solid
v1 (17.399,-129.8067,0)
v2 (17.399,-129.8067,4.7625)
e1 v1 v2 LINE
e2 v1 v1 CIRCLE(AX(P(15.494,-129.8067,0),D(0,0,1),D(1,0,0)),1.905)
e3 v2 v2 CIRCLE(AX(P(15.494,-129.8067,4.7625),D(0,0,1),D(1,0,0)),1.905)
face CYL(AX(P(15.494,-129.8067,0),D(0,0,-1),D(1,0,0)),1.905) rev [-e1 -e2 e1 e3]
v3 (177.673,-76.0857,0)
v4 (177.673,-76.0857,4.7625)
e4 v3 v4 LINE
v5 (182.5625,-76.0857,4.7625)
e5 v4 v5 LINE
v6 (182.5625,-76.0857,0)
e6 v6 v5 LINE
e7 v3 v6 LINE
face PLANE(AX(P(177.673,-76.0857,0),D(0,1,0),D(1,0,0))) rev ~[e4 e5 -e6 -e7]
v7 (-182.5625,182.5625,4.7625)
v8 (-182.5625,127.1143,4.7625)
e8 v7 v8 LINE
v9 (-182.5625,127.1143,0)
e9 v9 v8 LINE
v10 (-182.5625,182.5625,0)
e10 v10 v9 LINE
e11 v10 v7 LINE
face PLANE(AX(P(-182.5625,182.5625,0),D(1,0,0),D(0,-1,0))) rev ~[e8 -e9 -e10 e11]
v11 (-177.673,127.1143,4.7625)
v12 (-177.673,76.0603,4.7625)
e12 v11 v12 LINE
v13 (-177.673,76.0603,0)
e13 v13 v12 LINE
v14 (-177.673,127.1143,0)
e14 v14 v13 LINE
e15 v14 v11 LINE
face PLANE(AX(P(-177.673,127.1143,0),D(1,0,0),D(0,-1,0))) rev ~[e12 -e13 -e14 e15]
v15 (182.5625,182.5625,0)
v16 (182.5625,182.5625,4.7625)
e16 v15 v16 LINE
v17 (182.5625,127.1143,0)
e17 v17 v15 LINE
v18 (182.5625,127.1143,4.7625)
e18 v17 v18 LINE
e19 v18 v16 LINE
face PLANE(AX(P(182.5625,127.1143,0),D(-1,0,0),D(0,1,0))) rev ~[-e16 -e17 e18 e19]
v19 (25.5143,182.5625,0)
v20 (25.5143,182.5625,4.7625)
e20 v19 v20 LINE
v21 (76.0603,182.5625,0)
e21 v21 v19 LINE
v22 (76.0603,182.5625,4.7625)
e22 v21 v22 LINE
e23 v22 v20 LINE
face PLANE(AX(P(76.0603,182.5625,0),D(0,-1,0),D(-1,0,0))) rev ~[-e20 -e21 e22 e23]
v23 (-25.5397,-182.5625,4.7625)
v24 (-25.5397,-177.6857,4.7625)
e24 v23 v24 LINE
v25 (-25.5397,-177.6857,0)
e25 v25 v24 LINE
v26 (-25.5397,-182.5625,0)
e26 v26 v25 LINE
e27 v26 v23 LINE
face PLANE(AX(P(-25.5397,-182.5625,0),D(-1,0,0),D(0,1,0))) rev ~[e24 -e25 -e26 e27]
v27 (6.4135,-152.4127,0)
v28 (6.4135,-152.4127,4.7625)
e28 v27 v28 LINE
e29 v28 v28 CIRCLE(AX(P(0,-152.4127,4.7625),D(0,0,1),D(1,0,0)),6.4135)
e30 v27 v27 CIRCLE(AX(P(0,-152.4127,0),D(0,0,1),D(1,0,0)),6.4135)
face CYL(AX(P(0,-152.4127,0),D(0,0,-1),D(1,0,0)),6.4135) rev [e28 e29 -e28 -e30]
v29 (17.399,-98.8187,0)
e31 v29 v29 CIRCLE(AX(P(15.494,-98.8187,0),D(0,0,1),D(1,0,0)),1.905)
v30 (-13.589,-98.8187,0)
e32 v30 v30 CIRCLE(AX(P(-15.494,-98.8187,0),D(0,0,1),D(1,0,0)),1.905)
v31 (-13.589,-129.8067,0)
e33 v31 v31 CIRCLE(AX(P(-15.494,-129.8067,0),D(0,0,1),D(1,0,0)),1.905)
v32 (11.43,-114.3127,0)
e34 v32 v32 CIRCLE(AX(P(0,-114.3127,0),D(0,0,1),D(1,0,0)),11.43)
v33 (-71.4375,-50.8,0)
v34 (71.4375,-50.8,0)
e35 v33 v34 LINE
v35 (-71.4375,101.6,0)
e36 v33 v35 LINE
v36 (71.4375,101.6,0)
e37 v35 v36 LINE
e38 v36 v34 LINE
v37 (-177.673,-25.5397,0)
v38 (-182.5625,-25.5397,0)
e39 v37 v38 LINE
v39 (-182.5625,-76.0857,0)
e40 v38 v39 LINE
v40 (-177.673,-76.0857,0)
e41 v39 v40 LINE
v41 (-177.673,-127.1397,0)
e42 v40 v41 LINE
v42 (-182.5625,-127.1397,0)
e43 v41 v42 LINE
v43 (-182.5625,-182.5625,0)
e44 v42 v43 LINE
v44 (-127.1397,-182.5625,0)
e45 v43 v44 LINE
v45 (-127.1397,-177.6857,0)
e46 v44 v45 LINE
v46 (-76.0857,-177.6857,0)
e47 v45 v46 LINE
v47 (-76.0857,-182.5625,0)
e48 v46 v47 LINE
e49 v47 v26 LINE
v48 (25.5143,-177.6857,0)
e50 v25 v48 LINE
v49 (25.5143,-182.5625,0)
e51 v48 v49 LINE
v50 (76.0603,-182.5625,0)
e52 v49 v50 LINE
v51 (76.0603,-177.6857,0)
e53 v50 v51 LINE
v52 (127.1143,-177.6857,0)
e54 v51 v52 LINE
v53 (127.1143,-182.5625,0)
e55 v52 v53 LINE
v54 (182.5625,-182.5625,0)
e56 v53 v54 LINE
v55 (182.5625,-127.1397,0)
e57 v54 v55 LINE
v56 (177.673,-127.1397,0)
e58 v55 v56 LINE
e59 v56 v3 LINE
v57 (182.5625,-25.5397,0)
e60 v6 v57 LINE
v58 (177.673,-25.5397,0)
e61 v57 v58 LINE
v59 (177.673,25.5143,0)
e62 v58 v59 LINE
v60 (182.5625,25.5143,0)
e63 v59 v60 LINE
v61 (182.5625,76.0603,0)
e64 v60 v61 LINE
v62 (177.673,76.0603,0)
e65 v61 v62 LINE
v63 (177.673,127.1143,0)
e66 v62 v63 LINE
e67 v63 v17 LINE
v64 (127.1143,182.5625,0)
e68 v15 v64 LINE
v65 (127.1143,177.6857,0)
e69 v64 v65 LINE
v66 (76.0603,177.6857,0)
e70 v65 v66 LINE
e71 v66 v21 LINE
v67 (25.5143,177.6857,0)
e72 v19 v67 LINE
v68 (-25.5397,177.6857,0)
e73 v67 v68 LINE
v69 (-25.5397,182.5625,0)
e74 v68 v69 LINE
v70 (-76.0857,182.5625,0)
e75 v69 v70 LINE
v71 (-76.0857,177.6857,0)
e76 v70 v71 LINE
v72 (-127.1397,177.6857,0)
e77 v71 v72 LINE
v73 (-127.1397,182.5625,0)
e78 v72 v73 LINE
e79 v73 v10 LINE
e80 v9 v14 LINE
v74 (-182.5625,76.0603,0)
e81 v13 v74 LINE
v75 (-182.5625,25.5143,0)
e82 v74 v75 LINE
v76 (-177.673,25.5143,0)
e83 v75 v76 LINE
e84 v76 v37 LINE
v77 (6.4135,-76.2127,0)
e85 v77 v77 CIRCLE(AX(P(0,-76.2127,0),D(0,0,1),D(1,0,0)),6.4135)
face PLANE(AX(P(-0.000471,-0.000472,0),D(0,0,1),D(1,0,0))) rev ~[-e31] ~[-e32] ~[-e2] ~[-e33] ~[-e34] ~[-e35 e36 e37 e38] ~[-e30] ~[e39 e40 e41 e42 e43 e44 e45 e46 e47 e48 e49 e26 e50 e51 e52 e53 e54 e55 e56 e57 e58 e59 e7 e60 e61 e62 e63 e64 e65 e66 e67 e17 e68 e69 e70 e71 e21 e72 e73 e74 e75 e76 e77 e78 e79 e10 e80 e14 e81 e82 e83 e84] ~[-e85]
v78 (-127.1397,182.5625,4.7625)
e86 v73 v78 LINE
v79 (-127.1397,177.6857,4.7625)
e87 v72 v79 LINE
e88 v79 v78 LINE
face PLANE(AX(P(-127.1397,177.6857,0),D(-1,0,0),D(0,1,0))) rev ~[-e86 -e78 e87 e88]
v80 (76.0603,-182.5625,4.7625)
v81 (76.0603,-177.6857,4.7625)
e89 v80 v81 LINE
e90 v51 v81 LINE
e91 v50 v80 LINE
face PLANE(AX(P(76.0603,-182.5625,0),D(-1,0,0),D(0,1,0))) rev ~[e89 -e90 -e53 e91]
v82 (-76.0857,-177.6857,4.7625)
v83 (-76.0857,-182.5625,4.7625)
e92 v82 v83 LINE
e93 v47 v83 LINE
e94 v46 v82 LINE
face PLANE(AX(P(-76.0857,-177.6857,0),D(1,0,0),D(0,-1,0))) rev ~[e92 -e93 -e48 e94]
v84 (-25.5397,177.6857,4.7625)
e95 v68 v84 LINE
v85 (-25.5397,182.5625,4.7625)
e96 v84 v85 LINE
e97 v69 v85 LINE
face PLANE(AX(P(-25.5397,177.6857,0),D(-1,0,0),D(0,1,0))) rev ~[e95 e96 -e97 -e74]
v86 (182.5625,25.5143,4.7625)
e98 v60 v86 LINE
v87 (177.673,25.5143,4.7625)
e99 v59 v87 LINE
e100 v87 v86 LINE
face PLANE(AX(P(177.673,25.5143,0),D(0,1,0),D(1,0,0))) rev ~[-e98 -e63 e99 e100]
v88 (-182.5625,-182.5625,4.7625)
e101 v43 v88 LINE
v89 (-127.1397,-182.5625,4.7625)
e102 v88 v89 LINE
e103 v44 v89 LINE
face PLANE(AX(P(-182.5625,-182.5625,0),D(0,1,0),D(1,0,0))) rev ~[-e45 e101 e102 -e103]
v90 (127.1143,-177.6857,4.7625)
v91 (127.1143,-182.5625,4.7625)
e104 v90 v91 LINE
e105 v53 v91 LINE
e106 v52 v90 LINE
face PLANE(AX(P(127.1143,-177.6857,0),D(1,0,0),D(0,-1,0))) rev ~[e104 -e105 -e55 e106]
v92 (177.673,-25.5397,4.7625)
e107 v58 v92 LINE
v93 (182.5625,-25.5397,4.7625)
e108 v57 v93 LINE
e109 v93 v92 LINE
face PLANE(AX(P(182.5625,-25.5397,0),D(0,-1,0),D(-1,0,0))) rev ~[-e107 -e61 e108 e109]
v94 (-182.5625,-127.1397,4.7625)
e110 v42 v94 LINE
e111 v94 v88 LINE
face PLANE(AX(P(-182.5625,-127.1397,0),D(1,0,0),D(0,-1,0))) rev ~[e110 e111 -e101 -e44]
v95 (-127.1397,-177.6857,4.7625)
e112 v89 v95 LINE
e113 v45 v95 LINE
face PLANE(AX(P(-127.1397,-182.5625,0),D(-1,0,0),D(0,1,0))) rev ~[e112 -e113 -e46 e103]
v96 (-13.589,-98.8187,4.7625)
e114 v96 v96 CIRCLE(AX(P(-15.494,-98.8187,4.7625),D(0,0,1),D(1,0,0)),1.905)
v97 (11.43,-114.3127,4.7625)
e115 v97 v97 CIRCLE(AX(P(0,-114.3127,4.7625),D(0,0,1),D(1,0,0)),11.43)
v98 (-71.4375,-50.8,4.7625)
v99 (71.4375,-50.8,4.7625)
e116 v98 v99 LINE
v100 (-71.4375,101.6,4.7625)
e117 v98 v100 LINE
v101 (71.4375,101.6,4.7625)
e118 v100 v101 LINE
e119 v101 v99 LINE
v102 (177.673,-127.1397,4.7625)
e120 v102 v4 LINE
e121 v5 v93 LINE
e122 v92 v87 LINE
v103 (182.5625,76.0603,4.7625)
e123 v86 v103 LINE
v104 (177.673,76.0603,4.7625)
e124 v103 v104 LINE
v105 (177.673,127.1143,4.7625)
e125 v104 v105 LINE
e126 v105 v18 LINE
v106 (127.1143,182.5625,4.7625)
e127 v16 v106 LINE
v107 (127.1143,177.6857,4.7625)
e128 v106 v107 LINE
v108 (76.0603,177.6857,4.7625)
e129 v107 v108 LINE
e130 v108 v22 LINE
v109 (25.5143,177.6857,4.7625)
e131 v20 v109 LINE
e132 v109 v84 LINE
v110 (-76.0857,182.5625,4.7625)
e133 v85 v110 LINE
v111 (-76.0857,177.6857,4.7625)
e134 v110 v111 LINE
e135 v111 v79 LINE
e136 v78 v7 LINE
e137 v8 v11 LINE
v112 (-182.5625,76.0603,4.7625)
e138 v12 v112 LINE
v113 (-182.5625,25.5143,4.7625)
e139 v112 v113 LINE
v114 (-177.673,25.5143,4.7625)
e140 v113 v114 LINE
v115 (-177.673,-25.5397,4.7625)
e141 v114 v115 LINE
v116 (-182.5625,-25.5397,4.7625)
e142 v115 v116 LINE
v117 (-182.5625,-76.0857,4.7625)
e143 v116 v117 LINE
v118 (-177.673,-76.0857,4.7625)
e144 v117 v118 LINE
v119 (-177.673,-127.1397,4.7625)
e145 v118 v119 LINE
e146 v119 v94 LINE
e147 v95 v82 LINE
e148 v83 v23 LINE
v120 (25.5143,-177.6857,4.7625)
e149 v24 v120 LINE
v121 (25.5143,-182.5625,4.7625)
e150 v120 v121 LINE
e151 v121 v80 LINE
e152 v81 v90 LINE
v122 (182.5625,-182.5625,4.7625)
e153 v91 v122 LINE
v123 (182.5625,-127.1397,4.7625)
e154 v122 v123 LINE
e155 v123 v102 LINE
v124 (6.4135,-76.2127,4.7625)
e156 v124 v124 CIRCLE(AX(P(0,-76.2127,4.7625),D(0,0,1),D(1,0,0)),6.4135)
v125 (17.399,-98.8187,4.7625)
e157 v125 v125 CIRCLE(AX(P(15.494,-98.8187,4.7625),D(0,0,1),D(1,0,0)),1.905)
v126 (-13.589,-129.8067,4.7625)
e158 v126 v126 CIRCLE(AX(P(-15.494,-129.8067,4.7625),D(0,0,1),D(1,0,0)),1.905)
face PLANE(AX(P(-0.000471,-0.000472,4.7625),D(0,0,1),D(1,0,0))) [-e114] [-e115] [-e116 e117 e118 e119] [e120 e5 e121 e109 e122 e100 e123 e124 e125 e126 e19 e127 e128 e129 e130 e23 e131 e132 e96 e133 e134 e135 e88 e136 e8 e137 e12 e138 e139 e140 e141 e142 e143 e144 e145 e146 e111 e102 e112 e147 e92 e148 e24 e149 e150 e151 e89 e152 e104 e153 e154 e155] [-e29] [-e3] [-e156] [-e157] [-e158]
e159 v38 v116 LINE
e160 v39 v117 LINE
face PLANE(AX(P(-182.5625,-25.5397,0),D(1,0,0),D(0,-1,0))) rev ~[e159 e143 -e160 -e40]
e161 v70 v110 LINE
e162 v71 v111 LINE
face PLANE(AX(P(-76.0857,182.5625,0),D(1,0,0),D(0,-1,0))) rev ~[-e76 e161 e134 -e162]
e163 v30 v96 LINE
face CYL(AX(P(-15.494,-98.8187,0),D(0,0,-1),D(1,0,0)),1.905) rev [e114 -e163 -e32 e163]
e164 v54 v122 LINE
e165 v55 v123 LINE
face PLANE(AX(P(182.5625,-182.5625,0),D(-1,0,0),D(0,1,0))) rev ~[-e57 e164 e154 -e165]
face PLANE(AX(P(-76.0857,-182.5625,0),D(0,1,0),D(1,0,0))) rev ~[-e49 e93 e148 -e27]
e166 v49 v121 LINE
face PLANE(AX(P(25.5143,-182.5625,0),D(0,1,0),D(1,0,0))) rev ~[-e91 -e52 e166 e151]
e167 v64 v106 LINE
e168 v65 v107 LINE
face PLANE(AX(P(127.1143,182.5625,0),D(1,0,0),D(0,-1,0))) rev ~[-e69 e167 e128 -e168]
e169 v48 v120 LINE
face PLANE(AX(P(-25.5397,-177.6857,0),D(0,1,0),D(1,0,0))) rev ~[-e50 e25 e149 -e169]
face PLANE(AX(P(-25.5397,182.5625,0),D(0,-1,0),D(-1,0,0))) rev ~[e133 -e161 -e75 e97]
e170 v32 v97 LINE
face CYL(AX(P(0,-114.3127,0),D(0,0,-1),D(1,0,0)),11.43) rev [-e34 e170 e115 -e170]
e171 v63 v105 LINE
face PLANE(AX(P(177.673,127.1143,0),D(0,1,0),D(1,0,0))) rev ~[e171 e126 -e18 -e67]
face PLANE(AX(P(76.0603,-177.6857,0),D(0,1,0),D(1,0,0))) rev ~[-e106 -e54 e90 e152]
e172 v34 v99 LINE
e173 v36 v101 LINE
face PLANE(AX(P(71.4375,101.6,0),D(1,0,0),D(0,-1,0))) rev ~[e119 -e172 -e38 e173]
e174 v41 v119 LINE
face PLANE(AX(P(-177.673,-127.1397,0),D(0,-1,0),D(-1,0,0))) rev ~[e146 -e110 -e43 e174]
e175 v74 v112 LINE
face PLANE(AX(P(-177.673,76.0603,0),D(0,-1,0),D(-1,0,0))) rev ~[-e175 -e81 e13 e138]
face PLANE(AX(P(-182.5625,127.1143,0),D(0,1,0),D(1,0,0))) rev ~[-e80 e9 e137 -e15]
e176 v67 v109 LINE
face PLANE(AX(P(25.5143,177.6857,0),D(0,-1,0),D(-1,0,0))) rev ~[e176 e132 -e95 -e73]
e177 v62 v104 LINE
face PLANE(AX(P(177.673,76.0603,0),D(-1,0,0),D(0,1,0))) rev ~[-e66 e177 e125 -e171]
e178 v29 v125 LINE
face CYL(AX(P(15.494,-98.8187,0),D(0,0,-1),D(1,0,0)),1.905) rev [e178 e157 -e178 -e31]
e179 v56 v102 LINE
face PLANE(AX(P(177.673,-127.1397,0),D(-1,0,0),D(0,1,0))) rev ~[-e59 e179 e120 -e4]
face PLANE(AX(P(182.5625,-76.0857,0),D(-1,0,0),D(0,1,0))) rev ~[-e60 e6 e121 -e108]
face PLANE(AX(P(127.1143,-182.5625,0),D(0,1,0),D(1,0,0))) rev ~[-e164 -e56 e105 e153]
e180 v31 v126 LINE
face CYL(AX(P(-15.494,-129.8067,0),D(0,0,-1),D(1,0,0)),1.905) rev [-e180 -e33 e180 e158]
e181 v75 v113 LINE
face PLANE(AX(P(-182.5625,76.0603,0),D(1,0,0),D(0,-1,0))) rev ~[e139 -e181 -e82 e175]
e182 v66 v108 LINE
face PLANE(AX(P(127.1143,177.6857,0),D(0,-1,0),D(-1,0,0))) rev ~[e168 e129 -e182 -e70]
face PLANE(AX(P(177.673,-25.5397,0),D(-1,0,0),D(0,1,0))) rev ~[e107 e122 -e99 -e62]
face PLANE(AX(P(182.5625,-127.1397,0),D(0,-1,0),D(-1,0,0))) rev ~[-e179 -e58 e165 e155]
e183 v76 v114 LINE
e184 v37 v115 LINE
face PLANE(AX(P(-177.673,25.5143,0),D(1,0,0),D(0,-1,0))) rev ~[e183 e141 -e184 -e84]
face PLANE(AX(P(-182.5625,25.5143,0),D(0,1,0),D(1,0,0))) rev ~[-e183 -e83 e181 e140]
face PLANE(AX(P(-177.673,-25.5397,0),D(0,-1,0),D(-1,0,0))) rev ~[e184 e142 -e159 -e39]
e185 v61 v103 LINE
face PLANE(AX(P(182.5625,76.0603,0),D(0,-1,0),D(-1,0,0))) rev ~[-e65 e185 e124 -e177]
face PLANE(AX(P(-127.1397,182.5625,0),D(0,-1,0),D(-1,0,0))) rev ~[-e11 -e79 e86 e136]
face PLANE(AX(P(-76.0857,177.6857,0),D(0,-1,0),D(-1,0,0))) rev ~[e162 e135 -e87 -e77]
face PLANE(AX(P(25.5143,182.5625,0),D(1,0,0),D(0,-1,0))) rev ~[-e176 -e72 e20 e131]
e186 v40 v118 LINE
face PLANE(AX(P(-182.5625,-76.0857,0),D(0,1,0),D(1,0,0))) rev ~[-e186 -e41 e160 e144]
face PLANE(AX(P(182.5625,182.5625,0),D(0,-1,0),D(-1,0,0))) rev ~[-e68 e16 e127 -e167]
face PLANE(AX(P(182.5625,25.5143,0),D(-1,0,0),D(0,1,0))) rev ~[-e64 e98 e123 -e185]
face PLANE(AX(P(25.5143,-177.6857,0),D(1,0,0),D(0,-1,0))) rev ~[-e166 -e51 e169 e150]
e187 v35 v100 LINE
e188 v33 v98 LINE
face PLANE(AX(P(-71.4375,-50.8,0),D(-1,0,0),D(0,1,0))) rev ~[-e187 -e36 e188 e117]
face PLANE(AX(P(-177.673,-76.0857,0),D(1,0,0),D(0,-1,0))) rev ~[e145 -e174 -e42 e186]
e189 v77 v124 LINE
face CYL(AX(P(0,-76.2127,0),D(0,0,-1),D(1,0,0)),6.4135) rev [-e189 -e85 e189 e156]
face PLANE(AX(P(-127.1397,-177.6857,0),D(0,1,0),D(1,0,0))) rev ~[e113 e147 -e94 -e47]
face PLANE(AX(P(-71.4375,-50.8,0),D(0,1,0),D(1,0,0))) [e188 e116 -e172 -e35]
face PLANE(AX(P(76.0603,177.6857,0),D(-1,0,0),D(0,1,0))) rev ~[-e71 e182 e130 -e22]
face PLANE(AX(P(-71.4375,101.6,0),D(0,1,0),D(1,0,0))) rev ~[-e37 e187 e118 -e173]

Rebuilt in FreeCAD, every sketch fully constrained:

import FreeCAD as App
import Part
import Sketcher

V = App.Vector
Q = App.Units.Quantity


def add_polygon(sketch, points):
    """Adds a closed chain of lines whose ends are joined by coincident constraints."""
    first, n = sketch.GeometryCount, len(points)
    for a, b in zip(points, points[1:] + points[:1]):
        sketch.addGeometry(Part.LineSegment(App.Vector(*a, 0), App.Vector(*b, 0)), False)
    for i in range(n):
        sketch.addConstraint(Sketcher.Constraint("Coincident", first + i, 2, first + (i + 1) % n, 1))

doc = App.newDocument("Part")
body = doc.addObject("PartDesign::Body", "Body")

# Sketch on XY plane
sketch1 = body.newObject("Sketcher::SketchObject", "Sketch")
sketch1.AttachmentSupport = (doc.getObject("XY_Plane"), [""])
sketch1.MapMode = "FlatFace"
add_polygon(sketch1, [(182.6, 127.1), (182.6, 182.6), (127.1, 182.6), (127.1, 177.7), (76.1, 177.7), (76.1, 182.6), (25.5, 182.6), (25.5, 177.7), (-25.5, 177.7), (-25.5, 182.6), (-76.1, 182.6), (-76.1, 177.7), (-127.1, 177.7), (-127.1, 182.6), (-182.6, 182.6), (-182.6, 127.1), (-177.7, 127.1), (-177.7, 76.1), (-182.6, 76.1), (-182.6, 25.5), (-177.7, 25.5), (-177.7, -25.5), (-182.6, -25.5), (-182.6, -76.1), (-177.7, -76.1), (-177.7, -127.1), (-182.6, -127.1), (-182.6, -182.6), (-127.1, -182.6), (-127.1, -177.7), (-76.1, -177.7), (-76.1, -182.6), (-25.5, -182.6), (-25.5, -177.7), (25.5, -177.7), (25.5, -182.6), (76.1, -182.6), (76.1, -177.7), (127.1, -177.7), (127.1, -182.6), (182.6, -182.6), (182.6, -127.1), (177.7, -127.1), (177.7, -76.1), (182.6, -76.1), (182.6, -25.5), (177.7, -25.5), (177.7, 25.5), (182.6, 25.5), (182.6, 76.1), (177.7, 76.1), (177.7, 127.1)])  # lines 0-51
sketch1.addGeometry(Part.Circle(V(-15.5, -129.8, 0), V(0, 0, 1), 1.9), False)  # 52
sketch1.addGeometry(Part.Circle(V(-15.5, -98.8, 0), V(0, 0, 1), 1.9), False)  # 53
sketch1.addGeometry(Part.Circle(V(0, -152.4, 0), V(0, 0, 1), 6.4), False)  # 54
sketch1.addGeometry(Part.Circle(V(15.5, -129.8, 0), V(0, 0, 1), 1.9), False)  # 55
sketch1.addGeometry(Part.Circle(V(0, -114.3, 0), V(0, 0, 1), 11.4), False)  # 56
sketch1.addGeometry(Part.Circle(V(15.5, -98.8, 0), V(0, 0, 1), 1.9), False)  # 57
sketch1.addGeometry(Part.Circle(V(0, -76.2, 0), V(0, 0, 1), 6.4), False)  # 58
add_polygon(sketch1, [(-71.4, -50.8), (-71.4, 101.6), (71.4, 101.6), (71.4, -50.8)])  # lines 59-62
sketch1.addConstraint([
    Sketcher.Constraint("Vertical", 0),
    Sketcher.Constraint("Horizontal", 1),
    Sketcher.Constraint("Vertical", 2),
    Sketcher.Constraint("Horizontal", 3),
    Sketcher.Constraint("Vertical", 4),
    Sketcher.Constraint("Horizontal", 5),
    Sketcher.Constraint("Vertical", 6),
    Sketcher.Constraint("Horizontal", 7),
    Sketcher.Constraint("Vertical", 8),
    Sketcher.Constraint("Horizontal", 9),
    Sketcher.Constraint("Vertical", 10),
    Sketcher.Constraint("Horizontal", 11),
    Sketcher.Constraint("Vertical", 12),
    Sketcher.Constraint("Horizontal", 13),
    Sketcher.Constraint("Vertical", 14),
    Sketcher.Constraint("Horizontal", 15),
    Sketcher.Constraint("Vertical", 16),
    Sketcher.Constraint("Horizontal", 17),
    Sketcher.Constraint("Vertical", 18),
    Sketcher.Constraint("Horizontal", 19),
    Sketcher.Constraint("Vertical", 20),
    Sketcher.Constraint("Horizontal", 21),
    Sketcher.Constraint("Vertical", 22),
    Sketcher.Constraint("Horizontal", 23),
    Sketcher.Constraint("Vertical", 24),
    Sketcher.Constraint("Horizontal", 25),
    Sketcher.Constraint("Vertical", 26),
    Sketcher.Constraint("Horizontal", 27),
    Sketcher.Constraint("Vertical", 28),
    Sketcher.Constraint("Horizontal", 29),
    Sketcher.Constraint("Vertical", 30),
    Sketcher.Constraint("Horizontal", 31),
    Sketcher.Constraint("Vertical", 32),
    Sketcher.Constraint("Horizontal", 33),
    Sketcher.Constraint("Vertical", 34),
    Sketcher.Constraint("Horizontal", 35),
    Sketcher.Constraint("Vertical", 36),
    Sketcher.Constraint("Horizontal", 37),
    Sketcher.Constraint("Vertical", 38),
    Sketcher.Constraint("Horizontal", 39),
    Sketcher.Constraint("Vertical", 40),
    Sketcher.Constraint("Horizontal", 41),
    Sketcher.Constraint("Vertical", 42),
    Sketcher.Constraint("Horizontal", 43),
    Sketcher.Constraint("Vertical", 44),
    Sketcher.Constraint("Horizontal", 45),
    Sketcher.Constraint("Vertical", 46),
    Sketcher.Constraint("Horizontal", 47),
    Sketcher.Constraint("Vertical", 48),
    Sketcher.Constraint("Horizontal", 49),
    Sketcher.Constraint("Vertical", 50),
    Sketcher.Constraint("Horizontal", 51),
    Sketcher.Constraint("Vertical", 59),
    Sketcher.Constraint("Horizontal", 60),
    Sketcher.Constraint("Vertical", 61),
    Sketcher.Constraint("Horizontal", 62),
    Sketcher.Constraint("Equal", 52, 53),
    Sketcher.Constraint("Equal", 53, 55),
    Sketcher.Constraint("Equal", 55, 57),
    Sketcher.Constraint("Equal", 54, 58),
    Sketcher.Constraint("Symmetric", 0, 2, 26, 2, -1, 1),
    Sketcher.Constraint("Symmetric", 13, 2, 39, 2, -1, 1),
    Sketcher.Constraint("Symmetric", 52, 3, 55, 3, -2),
    Sketcher.Constraint("Symmetric", 53, 3, 57, 3, -2),
    Sketcher.Constraint("Symmetric", 0, 2, 13, 2, -2),
    Sketcher.Constraint("Symmetric", 24, 2, 41, 2, -2),
    Sketcher.Constraint("Symmetric", 22, 2, 43, 2, -2),
    Sketcher.Constraint("Symmetric", 20, 2, 45, 2, -2),
    Sketcher.Constraint("Symmetric", 18, 2, 47, 2, -2),
    Sketcher.Constraint("Symmetric", 16, 2, 49, 2, -2),
    Sketcher.Constraint("Symmetric", 11, 2, 28, 2, -1),
    Sketcher.Constraint("Symmetric", 9, 2, 30, 2, -1),
    Sketcher.Constraint("Symmetric", 7, 2, 32, 2, -1),
    Sketcher.Constraint("Symmetric", 5, 2, 34, 2, -1),
    Sketcher.Constraint("Symmetric", 3, 2, 36, 2, -1),
    Sketcher.Constraint("PointOnObject", 54, 3, -2),
    Sketcher.Constraint("PointOnObject", 56, 3, -2),
    Sketcher.Constraint("PointOnObject", 58, 3, -2),
    Sketcher.Constraint("Horizontal", 1, 2, 4, 2),
    Sketcher.Constraint("Horizontal", 3, 2, 6, 2),
    Sketcher.Constraint("Horizontal", 5, 2, 8, 2),
    Sketcher.Constraint("Horizontal", 7, 2, 10, 2),
    Sketcher.Constraint("Horizontal", 15, 2, 50, 2),
    Sketcher.Constraint("Vertical", 52, 3, 53, 3),
    Sketcher.Constraint("Vertical", 14, 2, 17, 2),
    Sketcher.Constraint("Vertical", 16, 2, 19, 2),
    Sketcher.Constraint("Vertical", 18, 2, 21, 2),
    Sketcher.Constraint("Vertical", 20, 2, 23, 2),
    Sketcher.Constraint("Vertical", 2, 2, 37, 2),
    Sketcher.Constraint("Equal", 3, 7),
    Sketcher.Constraint("Equal", 5, 9),
    Sketcher.Constraint("Equal", 7, 11),
    Sketcher.Constraint("Equal", 39, 0),
    Sketcher.Constraint("Equal", 37, 16),
    Sketcher.Constraint("Equal", 35, 18),
    Sketcher.Constraint("Equal", 16, 20),
    Sketcher.Constraint("Equal", 18, 22),
    Sketcher.Constraint("Equal", 20, 24),
    Sketcher.Constraint("Equal", 27, 26),
    Sketcher.Constraint("Diameter", 56, Q("0.9 in")),
    Sketcher.Constraint("Diameter", 52, Q("0.15 in")),
    Sketcher.Constraint("DistanceY", 59, 1, 59, 2, Q("6 in")),
    Sketcher.Constraint("Diameter", 54, Q("0.505 in")),
    Sketcher.Constraint("DistanceY", -1, 1, 59, 2, Q("4 in")),
    Sketcher.Constraint("DistanceX", 3, 2, 3, 1, Q("2.01 in")),
    Sketcher.Constraint("DistanceX", 5, 2, 5, 1, Q("1.99 in")),
    Sketcher.Constraint("DistanceX", 1, 2, 1, 1, Q("2.183 in")),
    Sketcher.Constraint("DistanceX", 13, 2, 13, 1, Q("2.182 in")),
    Sketcher.Constraint("DistanceX", 60, 1, 60, 2, Q("5.625 in")),
    Sketcher.Constraint("DistanceY", 2, 2, 2, 1, Q("0.192 in")),
    Sketcher.Constraint("DistanceX", 52, 3, -1, 1, Q("0.61 in")),
    Sketcher.Constraint("DistanceX", 15, 1, 15, 2, Q("0.1925 in")),
    Sketcher.Constraint("DistanceX", 59, 2, -1, 1, Q("2.8125 in")),
    Sketcher.Constraint("DistanceY", 52, 3, -1, 1, Q("5.1105 in")),
    Sketcher.Constraint("DistanceY", 53, 3, -1, 1, Q("3.8905 in")),
    Sketcher.Constraint("DistanceY", 54, 3, -1, 1, Q("6.0005 in")),
    Sketcher.Constraint("DistanceY", 56, 3, -1, 1, Q("4.5005 in")),
    Sketcher.Constraint("DistanceY", 58, 3, -1, 1, Q("3.0005 in")),
])
pad1 = body.newObject("PartDesign::Pad", "Pad")
pad1.Profile = sketch1
pad1.Length = Q("0.1875 in")

doc.recompute()
